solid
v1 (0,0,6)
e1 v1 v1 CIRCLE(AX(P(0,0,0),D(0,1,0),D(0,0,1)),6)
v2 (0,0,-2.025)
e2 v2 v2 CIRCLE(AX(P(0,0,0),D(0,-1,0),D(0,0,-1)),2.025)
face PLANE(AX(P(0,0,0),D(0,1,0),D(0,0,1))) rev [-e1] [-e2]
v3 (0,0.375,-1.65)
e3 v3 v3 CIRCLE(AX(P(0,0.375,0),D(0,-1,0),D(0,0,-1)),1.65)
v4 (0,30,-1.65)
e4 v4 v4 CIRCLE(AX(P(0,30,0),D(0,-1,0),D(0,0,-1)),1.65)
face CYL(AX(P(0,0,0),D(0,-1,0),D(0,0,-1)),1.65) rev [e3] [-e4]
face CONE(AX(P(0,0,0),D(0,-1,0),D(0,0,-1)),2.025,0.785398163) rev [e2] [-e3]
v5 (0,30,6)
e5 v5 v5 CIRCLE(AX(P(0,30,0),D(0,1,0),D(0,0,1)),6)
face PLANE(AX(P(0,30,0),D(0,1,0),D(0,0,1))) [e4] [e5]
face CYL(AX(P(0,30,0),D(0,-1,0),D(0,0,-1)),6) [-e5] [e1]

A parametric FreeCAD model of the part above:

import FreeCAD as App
import Part
import Sketcher
from FreeCAD import Vector

doc = App.newDocument("Part")
params = doc.addObject("Spreadsheet::Sheet", "Params")
for row, (alias, value) in enumerate([
    ("sketch1_diameter", "12 mm"),
    ("pad1_length", "30 mm"),
    ("sketch2_diameter", "3.3 mm"),
    ("hole_diameter", "3.3 mm"),
    ("hole_csink_diameter", "4.05 mm"),
], start=1):
    params.set(f"A{row}", alias)
    params.set(f"B{row}", "=" + value)
    params.setAlias(f"B{row}", alias)

body = doc.addObject("PartDesign::Body", "Body")

sketch1 = body.newObject("Sketcher::SketchObject", "Sketch")
sketch1.AttachmentSupport = (doc.getObject("XZ_Plane"), [""])
sketch1.MapMode = "FlatFace"
sketch1.addGeometry(Part.Circle(Vector(0, 0, 0), Vector(0, 0, 1), 6), False)
sketch1.addConstraint([
    Sketcher.Constraint("Coincident", 0, 3, -1, 1),
    Sketcher.Constraint("Diameter", 0, 12.0),
])
sketch1.setExpression("Constraints[1]", "Params.sketch1_diameter")
pad1 = body.newObject("PartDesign::Pad", "Pad")
pad1.Profile = sketch1
pad1.setExpression("Length", "Params.pad1_length")
pad1.Reversed = True

sketch2 = body.newObject("Sketcher::SketchObject", "Sketch001")
sketch2.AttachmentSupport = (doc.getObject("XZ_Plane"), [""])
sketch2.MapMode = "FlatFace"
sketch2.addGeometry(Part.Circle(Vector(0, 0, 0), Vector(0, 0, 1), 1.6), False)
sketch2.addConstraint([
    Sketcher.Constraint("Coincident", 0, 3, -1, 1),
    Sketcher.Constraint("Diameter", 0, 3.3),
])
sketch2.setExpression("Constraints[1]", "Params.sketch2_diameter")
doc.recompute()
hole = body.newObject("PartDesign::Hole", "Hole")
hole.Profile = sketch2
hole.ThreadType = "None"
hole.setExpression("Diameter", "Params.hole_diameter")
hole.DepthType = "ThroughAll"
hole.HoleCutType = "Countersink"
hole.setExpression("HoleCutDiameter", "Params.hole_csink_diameter")
hole.HoleCutCountersinkAngle = 90

doc.recompute()
